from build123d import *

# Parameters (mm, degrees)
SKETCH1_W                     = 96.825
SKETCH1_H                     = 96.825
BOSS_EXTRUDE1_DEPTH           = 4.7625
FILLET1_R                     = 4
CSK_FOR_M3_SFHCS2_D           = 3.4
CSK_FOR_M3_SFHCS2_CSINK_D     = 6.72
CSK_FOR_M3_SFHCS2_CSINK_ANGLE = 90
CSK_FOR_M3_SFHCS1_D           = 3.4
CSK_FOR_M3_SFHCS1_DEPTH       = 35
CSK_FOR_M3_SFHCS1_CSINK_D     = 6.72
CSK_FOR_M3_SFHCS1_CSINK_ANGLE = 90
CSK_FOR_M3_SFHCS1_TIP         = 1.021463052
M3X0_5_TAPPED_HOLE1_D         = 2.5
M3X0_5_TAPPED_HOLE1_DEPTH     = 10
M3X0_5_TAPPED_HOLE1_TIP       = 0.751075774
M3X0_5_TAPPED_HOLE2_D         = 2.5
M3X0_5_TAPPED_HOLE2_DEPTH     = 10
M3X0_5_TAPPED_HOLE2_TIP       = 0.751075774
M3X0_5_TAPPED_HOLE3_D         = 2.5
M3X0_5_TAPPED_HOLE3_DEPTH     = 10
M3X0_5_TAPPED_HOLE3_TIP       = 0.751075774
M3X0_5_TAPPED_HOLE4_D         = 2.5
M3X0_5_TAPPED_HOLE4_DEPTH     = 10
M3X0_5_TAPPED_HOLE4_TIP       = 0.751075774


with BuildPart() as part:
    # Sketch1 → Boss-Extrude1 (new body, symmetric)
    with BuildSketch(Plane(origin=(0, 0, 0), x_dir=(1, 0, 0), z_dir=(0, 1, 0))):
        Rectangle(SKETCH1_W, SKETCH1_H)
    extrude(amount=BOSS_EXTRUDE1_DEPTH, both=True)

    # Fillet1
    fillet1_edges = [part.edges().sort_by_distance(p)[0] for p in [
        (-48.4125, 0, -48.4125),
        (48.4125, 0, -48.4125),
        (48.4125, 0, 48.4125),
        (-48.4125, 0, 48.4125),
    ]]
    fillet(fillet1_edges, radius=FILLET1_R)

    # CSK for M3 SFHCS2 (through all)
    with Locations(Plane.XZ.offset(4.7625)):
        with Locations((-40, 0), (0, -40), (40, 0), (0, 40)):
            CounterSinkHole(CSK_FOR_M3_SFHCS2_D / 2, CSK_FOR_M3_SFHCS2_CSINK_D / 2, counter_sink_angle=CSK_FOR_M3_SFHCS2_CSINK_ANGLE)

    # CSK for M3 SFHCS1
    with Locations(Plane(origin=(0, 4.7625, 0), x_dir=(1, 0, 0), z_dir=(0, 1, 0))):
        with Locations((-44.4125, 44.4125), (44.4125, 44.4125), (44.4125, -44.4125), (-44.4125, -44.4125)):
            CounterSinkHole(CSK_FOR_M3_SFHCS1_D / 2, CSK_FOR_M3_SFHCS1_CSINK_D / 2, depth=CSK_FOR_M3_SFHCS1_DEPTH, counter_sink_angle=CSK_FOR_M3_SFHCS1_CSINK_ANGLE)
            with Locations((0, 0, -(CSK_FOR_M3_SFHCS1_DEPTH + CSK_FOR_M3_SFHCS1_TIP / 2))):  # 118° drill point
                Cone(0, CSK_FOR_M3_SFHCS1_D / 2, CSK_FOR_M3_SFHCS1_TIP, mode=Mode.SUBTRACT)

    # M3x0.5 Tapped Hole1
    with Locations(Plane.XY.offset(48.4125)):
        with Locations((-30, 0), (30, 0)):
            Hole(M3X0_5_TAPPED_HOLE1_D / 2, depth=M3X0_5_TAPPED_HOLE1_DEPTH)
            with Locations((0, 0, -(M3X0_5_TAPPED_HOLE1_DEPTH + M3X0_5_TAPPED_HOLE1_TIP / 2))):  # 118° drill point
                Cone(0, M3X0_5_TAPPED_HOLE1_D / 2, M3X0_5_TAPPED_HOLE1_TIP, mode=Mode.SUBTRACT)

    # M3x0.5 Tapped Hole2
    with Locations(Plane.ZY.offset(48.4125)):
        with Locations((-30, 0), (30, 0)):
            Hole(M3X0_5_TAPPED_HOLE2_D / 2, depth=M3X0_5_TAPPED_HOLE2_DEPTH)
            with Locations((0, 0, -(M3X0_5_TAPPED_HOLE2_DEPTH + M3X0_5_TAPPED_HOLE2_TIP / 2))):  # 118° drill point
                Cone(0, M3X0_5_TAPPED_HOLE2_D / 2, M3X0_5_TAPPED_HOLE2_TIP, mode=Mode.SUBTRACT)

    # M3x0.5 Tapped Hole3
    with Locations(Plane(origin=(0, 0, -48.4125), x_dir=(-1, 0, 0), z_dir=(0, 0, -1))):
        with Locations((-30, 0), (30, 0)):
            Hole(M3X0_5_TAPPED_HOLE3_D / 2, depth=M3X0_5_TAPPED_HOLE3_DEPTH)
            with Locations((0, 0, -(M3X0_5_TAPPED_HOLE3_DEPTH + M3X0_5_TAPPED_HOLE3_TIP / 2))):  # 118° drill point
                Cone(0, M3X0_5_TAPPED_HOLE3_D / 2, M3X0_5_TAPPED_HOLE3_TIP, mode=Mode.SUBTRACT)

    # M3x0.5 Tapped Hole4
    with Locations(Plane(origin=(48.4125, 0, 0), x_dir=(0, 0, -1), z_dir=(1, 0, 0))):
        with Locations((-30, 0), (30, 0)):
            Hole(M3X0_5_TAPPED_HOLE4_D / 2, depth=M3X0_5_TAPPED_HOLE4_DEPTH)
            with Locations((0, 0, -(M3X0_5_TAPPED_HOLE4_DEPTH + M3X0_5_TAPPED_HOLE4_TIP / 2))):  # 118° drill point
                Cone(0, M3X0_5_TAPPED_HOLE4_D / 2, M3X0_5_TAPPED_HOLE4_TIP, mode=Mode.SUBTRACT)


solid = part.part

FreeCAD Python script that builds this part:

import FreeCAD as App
import Part
import Sketcher
from FreeCAD import Vector


def edges_at(feature, points):
    """Names of the edges that pass closest to the given points."""
    edges = feature.Shape.Edges
    near = lambda p: min(range(len(edges)), key=lambda i: edges[i].distToShape(Part.Vertex(*p))[0])
    return sorted({f"Edge{near(p) + 1}" for p in points})


def add_polygon(sketch, points):
    """Adds a closed chain of lines whose ends are joined by coincident constraints."""
    first, n = sketch.GeometryCount, len(points)
    for a, b in zip(points, points[1:] + points[:1]):
        sketch.addGeometry(Part.LineSegment(App.Vector(*a, 0), App.Vector(*b, 0)), False)
    for i in range(n):
        sketch.addConstraint(Sketcher.Constraint("Coincident", first + i, 2, first + (i + 1) % n, 1))

doc = App.newDocument("Part")
body = doc.addObject("PartDesign::Body", "Body")

sketch1 = body.newObject("Sketcher::SketchObject", "Sketch")
sketch1.AttachmentSupport = (doc.getObject("XZ_Plane"), [""])
sketch1.MapMode = "FlatFace"
add_polygon(sketch1, [(-48, -48), (-48, 48), (48, 48), (48, -48)])
sketch1.addConstraint(Sketcher.Constraint("Vertical", 0))
sketch1.addConstraint(Sketcher.Constraint("Horizontal", 1))
sketch1.addConstraint(Sketcher.Constraint("Vertical", 2))
sketch1.addConstraint(Sketcher.Constraint("Horizontal", 3))
sketch1.addConstraint(Sketcher.Constraint("Symmetric", 0, 2, 2, 2, -1, 1))
sketch1.addConstraint(Sketcher.Constraint("Equal", 3, 0))
sketch1.addConstraint(Sketcher.Constraint("DistanceX", 1, 1, 1, 2, 96.825))
pad1 = body.newObject("PartDesign::Pad", "Pad")
pad1.Profile = sketch1
pad1.Length = 9.525
pad1.Midplane = True
doc.recompute()

fillet = body.newObject("PartDesign::Fillet", "Fillet")
fillet.Base = (pad1, edges_at(pad1, [
    (-48.413, 0, -48.413),
    (48.413, 0, -48.413),
    (48.413, 0, 48.413),
    (-48.413, 0, 48.413),
]))
fillet.Radius = 4

sketch2 = body.newObject("Sketcher::SketchObject", "Sketch001")
sketch2.AttachmentSupport = (doc.getObject("XZ_Plane"), [""])
sketch2.MapMode = "FlatFace"
sketch2.AttachmentOffset = App.Placement(Vector(0, 0, 4.7625), App.Rotation())
sketch2.addGeometry(Part.Circle(Vector(-40, 0, 0), Vector(0, 0, 1), 1.7), False)
sketch2.addGeometry(Part.Circle(Vector(0, -40, 0), Vector(0, 0, 1), 1.7), False)
sketch2.addGeometry(Part.Circle(Vector(40, 0, 0), Vector(0, 0, 1), 1.7), False)
sketch2.addGeometry(Part.Circle(Vector(0, 40, 0), Vector(0, 0, 1), 1.7), False)
sketch2.addConstraint(Sketcher.Constraint("Equal", 0, 1))
sketch2.addConstraint(Sketcher.Constraint("Equal", 1, 2))
sketch2.addConstraint(Sketcher.Constraint("Equal", 2, 3))
sketch2.addConstraint(Sketcher.Constraint("Symmetric", 0, 3, 2, 3, -1, 1))
sketch2.addConstraint(Sketcher.Constraint("Symmetric", 1, 3, 3, 3, -1, 1))
sketch2.addConstraint(Sketcher.Constraint("PointOnObject", 0, 3, -1))
sketch2.addConstraint(Sketcher.Constraint("PointOnObject", 1, 3, -2))
sketch2.addConstraint(Sketcher.Constraint("Diameter", 0, 3.4))
sketch2.addConstraint(Sketcher.Constraint("DistanceX", 0, 3, -1, 1, 40.0))
sketch2.addConstraint(Sketcher.Constraint("DistanceY", 1, 3, -1, 1, 40.0))
doc.recompute()
hole = body.newObject("PartDesign::Hole", "Hole")
hole.Profile = sketch2
hole.ThreadType = "None"
hole.Diameter = 3.4
hole.DepthType = "ThroughAll"
hole.HoleCutType = "Countersink"
hole.HoleCutDiameter = 6.72
hole.HoleCutCountersinkAngle = 90

sketch3 = body.newObject("Sketcher::SketchObject", "Sketch002")
sketch3.AttachmentSupport = (doc.getObject("XZ_Plane"), [""])
sketch3.MapMode = "FlatFace"
sketch3.AttachmentOffset = App.Placement(Vector(0, 0, -4.7625), App.Rotation())
sketch3.addGeometry(Part.Circle(Vector(-44.4, -44.4, 0), Vector(0, 0, 1), 1.7), False)
sketch3.addGeometry(Part.Circle(Vector(44.4, -44.4, 0), Vector(0, 0, 1), 1.7), False)
sketch3.addGeometry(Part.Circle(Vector(44.4, 44.4, 0), Vector(0, 0, 1), 1.7), False)
sketch3.addGeometry(Part.Circle(Vector(-44.4, 44.4, 0), Vector(0, 0, 1), 1.7), False)
sketch3.addConstraint(Sketcher.Constraint("Equal", 0, 1))
sketch3.addConstraint(Sketcher.Constraint("Equal", 1, 2))
sketch3.addConstraint(Sketcher.Constraint("Equal", 2, 3))
sketch3.addConstraint(Sketcher.Constraint("Symmetric", 0, 3, 2, 3, -1, 1))
sketch3.addConstraint(Sketcher.Constraint("Symmetric", 1, 3, 3, 3, -1, 1))
sketch3.addConstraint(Sketcher.Constraint("Symmetric", 0, 3, 1, 3, -2))
sketch3.addConstraint(Sketcher.Constraint("Diameter", 0, 3.4))
sketch3.addConstraint(Sketcher.Constraint("DistanceX", 0, 3, 1, 3, 88.825))
sketch3.addConstraint(Sketcher.Constraint("DistanceY", 1, 3, 2, 3, 88.825))
doc.recompute()
hole2 = body.newObject("PartDesign::Hole", "Hole001")
hole2.Profile = sketch3
hole2.ThreadType = "None"
hole2.Diameter = 3.4
hole2.DepthType = "Dimension"
hole2.Depth = 35
hole2.DrillPoint = "Angled"
hole2.DrillPointAngle = 118
hole2.HoleCutType = "Countersink"
hole2.HoleCutDiameter = 6.72
hole2.HoleCutCountersinkAngle = 90
hole2.Reversed = True

sketch4 = body.newObject("Sketcher::SketchObject", "Sketch003")
sketch4.AttachmentSupport = (doc.getObject("XY_Plane"), [""])
sketch4.MapMode = "FlatFace"
sketch4.AttachmentOffset = App.Placement(Vector(0, 0, 48.4125), App.Rotation())
sketch4.addGeometry(Part.Circle(Vector(-30, 0, 0), Vector(0, 0, 1), 1.2), False)
sketch4.addGeometry(Part.Circle(Vector(30, 0, 0), Vector(0, 0, 1), 1.2), False)
sketch4.addConstraint(Sketcher.Constraint("Equal", 0, 1))
sketch4.addConstraint(Sketcher.Constraint("Symmetric", 0, 3, 1, 3, -1, 1))
sketch4.addConstraint(Sketcher.Constraint("PointOnObject", 0, 3, -1))
sketch4.addConstraint(Sketcher.Constraint("Diameter", 0, 2.5))
sketch4.addConstraint(Sketcher.Constraint("DistanceX", 0, 3, -1, 1, 30.0))
doc.recompute()
hole3 = body.newObject("PartDesign::Hole", "Hole002")
hole3.Profile = sketch4
hole3.ThreadType = "None"
hole3.Diameter = 2.5
hole3.DepthType = "Dimension"
hole3.Depth = 10
hole3.DrillPoint = "Angled"
hole3.DrillPointAngle = 118

sketch5 = body.newObject("Sketcher::SketchObject", "Sketch004")
sketch5.AttachmentSupport = (doc.getObject("YZ_Plane"), [""])
sketch5.MapMode = "FlatFace"
sketch5.AttachmentOffset = App.Placement(Vector(0, 0, -48.4125), App.Rotation())
sketch5.addGeometry(Part.Circle(Vector(0, -30, 0), Vector(0, 0, 1), 1.2), False)
sketch5.addGeometry(Part.Circle(Vector(0, 30, 0), Vector(0, 0, 1), 1.2), False)
sketch5.addConstraint(Sketcher.Constraint("Equal", 0, 1))
sketch5.addConstraint(Sketcher.Constraint("Symmetric", 0, 3, 1, 3, -1, 1))
sketch5.addConstraint(Sketcher.Constraint("PointOnObject", 0, 3, -2))
sketch5.addConstraint(Sketcher.Constraint("Diameter", 0, 2.5))
sketch5.addConstraint(Sketcher.Constraint("DistanceY", 0, 3, -1, 1, 30.0))
doc.recompute()
hole4 = body.newObject("PartDesign::Hole", "Hole003")
hole4.Profile = sketch5
hole4.ThreadType = "None"
hole4.Diameter = 2.5
hole4.DepthType = "Dimension"
hole4.Depth = 10
hole4.DrillPoint = "Angled"
hole4.DrillPointAngle = 118
hole4.Reversed = True

sketch6 = body.newObject("Sketcher::SketchObject", "Sketch005")
sketch6.AttachmentSupport = (doc.getObject("XY_Plane"), [""])
sketch6.MapMode = "FlatFace"
sketch6.AttachmentOffset = App.Placement(Vector(0, 0, -48.4125), App.Rotation())
sketch6.addGeometry(Part.Circle(Vector(30, 0, 0), Vector(0, 0, 1), 1.2), False)
sketch6.addGeometry(Part.Circle(Vector(-30, 0, 0), Vector(0, 0, 1), 1.2), False)
sketch6.addConstraint(Sketcher.Constraint("Equal", 0, 1))
sketch6.addConstraint(Sketcher.Constraint("Symmetric", 0, 3, 1, 3, -1, 1))
sketch6.addConstraint(Sketcher.Constraint("PointOnObject", 0, 3, -1))
sketch6.addConstraint(Sketcher.Constraint("Diameter", 0, 2.5))
sketch6.addConstraint(Sketcher.Constraint("DistanceX", -1, 1, 0, 3, 30.0))
doc.recompute()
hole5 = body.newObject("PartDesign::Hole", "Hole004")
hole5.Profile = sketch6
hole5.ThreadType = "None"
hole5.Diameter = 2.5
hole5.DepthType = "Dimension"
hole5.Depth = 10
hole5.DrillPoint = "Angled"
hole5.DrillPointAngle = 118
hole5.Reversed = True

sketch7 = body.newObject("Sketcher::SketchObject", "Sketch006")
sketch7.AttachmentSupport = (doc.getObject("YZ_Plane"), [""])
sketch7.MapMode = "FlatFace"
sketch7.AttachmentOffset = App.Placement(Vector(0, 0, 48.4125), App.Rotation())
sketch7.addGeometry(Part.Circle(Vector(0, 30, 0), Vector(0, 0, 1), 1.2), False)
sketch7.addGeometry(Part.Circle(Vector(0, -30, 0), Vector(0, 0, 1), 1.2), False)
sketch7.addConstraint(Sketcher.Constraint("Equal", 0, 1))
sketch7.addConstraint(Sketcher.Constraint("Symmetric", 0, 3, 1, 3, -1, 1))
sketch7.addConstraint(Sketcher.Constraint("PointOnObject", 0, 3, -2))
sketch7.addConstraint(Sketcher.Constraint("Diameter", 0, 2.5))
sketch7.addConstraint(Sketcher.Constraint("DistanceY", -1, 1, 0, 3, 30.0))
doc.recompute()
hole6 = body.newObject("PartDesign::Hole", "Hole005")
hole6.Profile = sketch7
hole6.ThreadType = "None"
hole6.Diameter = 2.5
hole6.DepthType = "Dimension"
hole6.Depth = 10
hole6.DrillPoint = "Angled"
hole6.DrillPointAngle = 118

doc.recompute()
